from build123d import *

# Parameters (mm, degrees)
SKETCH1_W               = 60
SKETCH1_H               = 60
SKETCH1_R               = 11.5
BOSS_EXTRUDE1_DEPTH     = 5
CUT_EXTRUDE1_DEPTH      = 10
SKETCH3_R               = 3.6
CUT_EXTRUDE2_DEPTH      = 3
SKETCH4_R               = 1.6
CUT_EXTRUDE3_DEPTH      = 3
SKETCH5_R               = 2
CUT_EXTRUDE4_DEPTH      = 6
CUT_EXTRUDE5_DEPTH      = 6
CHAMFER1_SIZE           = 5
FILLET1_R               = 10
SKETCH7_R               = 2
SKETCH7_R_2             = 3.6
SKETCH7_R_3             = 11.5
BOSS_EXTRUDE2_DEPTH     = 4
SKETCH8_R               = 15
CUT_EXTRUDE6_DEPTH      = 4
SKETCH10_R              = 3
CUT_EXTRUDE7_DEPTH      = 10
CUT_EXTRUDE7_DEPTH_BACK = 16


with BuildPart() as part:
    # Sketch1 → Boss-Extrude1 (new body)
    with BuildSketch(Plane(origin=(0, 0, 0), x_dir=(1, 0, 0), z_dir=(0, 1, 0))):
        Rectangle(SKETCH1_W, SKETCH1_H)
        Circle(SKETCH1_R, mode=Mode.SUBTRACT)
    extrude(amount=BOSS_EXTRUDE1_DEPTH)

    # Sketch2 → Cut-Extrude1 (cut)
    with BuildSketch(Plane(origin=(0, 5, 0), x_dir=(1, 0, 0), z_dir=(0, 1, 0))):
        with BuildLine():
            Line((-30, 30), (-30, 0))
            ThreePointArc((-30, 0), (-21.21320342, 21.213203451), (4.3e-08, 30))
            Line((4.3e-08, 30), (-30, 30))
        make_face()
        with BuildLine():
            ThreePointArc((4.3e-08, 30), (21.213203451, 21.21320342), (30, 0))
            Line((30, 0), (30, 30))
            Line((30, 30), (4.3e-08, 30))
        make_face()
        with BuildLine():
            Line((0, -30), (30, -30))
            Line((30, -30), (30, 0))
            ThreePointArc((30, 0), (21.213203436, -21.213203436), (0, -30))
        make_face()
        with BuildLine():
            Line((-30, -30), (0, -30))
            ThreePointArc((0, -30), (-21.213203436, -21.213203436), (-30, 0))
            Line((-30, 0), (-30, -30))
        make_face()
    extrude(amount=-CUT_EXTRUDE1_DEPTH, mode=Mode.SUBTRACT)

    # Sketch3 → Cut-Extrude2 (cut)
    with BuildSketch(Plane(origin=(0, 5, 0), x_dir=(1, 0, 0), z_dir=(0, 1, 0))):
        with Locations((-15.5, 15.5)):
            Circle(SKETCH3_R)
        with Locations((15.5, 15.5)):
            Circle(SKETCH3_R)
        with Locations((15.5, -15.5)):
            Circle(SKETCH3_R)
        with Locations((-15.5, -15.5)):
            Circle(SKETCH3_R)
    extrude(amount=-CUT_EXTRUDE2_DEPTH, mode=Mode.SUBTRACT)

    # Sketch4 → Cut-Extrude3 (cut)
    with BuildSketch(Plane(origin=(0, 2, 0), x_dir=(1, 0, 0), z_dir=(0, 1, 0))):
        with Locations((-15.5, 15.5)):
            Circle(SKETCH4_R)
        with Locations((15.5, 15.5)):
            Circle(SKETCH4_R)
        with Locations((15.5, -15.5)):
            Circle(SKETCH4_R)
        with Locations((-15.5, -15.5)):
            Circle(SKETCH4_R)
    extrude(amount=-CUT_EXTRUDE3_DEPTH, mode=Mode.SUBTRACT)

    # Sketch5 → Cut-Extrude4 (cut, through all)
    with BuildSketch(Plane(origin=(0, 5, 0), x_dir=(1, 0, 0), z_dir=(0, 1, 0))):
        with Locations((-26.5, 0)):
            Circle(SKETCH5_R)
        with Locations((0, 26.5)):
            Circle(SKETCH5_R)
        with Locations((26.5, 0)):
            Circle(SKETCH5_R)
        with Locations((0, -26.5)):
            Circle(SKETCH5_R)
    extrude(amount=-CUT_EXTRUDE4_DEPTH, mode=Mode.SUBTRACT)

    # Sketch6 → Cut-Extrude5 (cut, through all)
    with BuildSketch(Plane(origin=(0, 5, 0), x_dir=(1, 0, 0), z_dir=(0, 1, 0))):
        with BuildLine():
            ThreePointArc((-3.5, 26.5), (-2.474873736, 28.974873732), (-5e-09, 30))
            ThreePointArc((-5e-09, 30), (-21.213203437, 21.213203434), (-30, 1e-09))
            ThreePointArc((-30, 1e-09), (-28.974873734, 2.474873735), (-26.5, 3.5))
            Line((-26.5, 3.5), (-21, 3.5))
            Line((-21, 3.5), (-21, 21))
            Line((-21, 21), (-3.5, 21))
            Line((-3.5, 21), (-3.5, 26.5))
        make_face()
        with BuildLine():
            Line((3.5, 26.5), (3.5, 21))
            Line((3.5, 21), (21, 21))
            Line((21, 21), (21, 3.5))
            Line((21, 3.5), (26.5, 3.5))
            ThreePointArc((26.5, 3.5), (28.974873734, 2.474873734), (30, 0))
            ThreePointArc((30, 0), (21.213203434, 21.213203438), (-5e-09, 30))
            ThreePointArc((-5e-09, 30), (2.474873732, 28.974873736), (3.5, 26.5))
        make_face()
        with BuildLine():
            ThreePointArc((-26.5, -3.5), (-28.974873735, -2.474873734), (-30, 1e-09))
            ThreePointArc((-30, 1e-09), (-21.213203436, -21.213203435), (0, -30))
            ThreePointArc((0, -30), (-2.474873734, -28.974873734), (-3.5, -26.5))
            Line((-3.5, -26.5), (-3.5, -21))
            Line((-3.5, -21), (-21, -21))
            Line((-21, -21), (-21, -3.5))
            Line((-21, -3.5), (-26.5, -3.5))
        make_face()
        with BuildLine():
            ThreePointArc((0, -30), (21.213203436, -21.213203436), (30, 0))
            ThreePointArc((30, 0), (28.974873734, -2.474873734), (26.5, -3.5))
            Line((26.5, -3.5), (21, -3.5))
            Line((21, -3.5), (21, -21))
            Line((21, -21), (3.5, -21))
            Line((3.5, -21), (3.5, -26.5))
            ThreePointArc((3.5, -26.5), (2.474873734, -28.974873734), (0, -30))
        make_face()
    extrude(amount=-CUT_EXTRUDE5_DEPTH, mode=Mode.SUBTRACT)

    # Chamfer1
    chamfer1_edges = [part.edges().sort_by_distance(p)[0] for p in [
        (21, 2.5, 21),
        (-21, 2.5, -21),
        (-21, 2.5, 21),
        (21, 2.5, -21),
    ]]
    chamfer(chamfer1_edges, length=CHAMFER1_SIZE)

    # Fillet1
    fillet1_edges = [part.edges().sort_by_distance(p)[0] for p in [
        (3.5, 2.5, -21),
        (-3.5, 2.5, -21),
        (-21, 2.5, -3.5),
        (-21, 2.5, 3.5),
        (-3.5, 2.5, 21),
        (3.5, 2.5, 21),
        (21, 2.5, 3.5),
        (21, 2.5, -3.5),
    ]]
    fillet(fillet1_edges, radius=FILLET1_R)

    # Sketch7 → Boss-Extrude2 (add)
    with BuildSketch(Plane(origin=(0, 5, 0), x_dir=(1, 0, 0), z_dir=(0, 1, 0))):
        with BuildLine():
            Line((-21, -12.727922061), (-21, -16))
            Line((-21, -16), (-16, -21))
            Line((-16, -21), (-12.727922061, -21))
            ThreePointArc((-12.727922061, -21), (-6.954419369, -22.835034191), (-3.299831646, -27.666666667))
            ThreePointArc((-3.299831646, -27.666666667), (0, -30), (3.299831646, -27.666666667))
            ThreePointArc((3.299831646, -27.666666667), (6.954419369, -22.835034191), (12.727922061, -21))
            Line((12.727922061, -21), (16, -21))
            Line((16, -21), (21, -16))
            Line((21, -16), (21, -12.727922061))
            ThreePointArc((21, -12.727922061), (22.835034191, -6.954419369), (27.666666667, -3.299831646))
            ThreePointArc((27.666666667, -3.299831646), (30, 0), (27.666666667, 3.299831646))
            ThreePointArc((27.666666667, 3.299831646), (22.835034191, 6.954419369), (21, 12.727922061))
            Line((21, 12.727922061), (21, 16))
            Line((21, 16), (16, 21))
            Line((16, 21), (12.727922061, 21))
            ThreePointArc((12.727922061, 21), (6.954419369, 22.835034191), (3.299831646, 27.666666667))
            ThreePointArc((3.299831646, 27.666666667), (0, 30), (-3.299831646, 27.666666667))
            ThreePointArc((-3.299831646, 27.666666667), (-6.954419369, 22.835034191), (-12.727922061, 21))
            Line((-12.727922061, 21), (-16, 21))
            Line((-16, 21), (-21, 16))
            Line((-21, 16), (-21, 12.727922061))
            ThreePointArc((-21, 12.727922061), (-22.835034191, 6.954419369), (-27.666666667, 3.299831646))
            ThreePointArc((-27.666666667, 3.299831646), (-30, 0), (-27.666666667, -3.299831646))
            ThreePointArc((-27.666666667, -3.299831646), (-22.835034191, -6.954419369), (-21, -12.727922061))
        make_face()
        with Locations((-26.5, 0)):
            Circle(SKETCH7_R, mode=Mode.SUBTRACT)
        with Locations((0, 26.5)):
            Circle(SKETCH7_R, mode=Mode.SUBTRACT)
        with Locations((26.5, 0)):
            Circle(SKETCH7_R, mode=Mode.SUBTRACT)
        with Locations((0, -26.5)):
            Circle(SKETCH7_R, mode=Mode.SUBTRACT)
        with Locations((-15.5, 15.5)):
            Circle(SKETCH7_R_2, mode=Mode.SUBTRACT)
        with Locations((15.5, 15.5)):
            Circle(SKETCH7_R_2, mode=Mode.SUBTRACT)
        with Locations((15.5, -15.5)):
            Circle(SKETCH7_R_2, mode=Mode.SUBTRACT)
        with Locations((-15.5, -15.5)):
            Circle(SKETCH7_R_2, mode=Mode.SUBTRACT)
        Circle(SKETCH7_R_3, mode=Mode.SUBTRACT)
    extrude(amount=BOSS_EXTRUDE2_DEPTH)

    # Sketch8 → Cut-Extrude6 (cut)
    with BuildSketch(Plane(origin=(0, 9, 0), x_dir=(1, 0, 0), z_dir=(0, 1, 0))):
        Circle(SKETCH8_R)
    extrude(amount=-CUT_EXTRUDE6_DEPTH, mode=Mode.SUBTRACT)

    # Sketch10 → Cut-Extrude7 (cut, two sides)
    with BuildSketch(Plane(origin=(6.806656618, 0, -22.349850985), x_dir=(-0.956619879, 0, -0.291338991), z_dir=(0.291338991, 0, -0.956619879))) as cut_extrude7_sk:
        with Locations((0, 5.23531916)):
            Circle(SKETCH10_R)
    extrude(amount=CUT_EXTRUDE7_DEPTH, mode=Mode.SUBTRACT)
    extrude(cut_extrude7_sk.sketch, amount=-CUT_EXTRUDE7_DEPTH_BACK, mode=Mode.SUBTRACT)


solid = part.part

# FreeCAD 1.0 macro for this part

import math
import FreeCAD as App
import Part
import Sketcher

V = App.Vector
Q = App.Units.Quantity


def edges_at(feature, points):
    """Names of the edges that pass closest to the given points."""
    edges = feature.Shape.Edges
    near = lambda p: min(range(len(edges)), key=lambda i: edges[i].distToShape(Part.Vertex(*p))[0])
    return sorted({f"Edge{near(p) + 1}" for p in points})

doc = App.newDocument("Part")
body = doc.addObject("PartDesign::Body", "Body")

sketch1 = body.newObject("Sketcher::SketchObject", "Sketch")
sketch1.AttachmentSupport = (doc.getObject("XZ_Plane"), [""])
sketch1.MapMode = "FlatFace"
sketch1.addGeometry(Part.LineSegment(V(-30, -30, 0), V(-30, 30, 0)), False)
sketch1.addGeometry(Part.LineSegment(V(-30, 30, 0), V(30, 30, 0)), False)
sketch1.addGeometry(Part.LineSegment(V(30, 30, 0), V(30, -30, 0)), False)
sketch1.addGeometry(Part.LineSegment(V(30, -30, 0), V(-30, -30, 0)), False)
sketch1.addGeometry(Part.Circle(V(0, 0, 0), V(0, 0, 1), 12), False)
sketch1.addConstraint(Sketcher.Constraint("Coincident", 0, 2, 1, 1))
sketch1.addConstraint(Sketcher.Constraint("Coincident", 1, 2, 2, 1))
sketch1.addConstraint(Sketcher.Constraint("Coincident", 2, 2, 3, 1))
sketch1.addConstraint(Sketcher.Constraint("Coincident", 3, 2, 0, 1))
sketch1.addConstraint(Sketcher.Constraint("Vertical", 0))
sketch1.addConstraint(Sketcher.Constraint("Horizontal", 1))
sketch1.addConstraint(Sketcher.Constraint("Vertical", 2))
sketch1.addConstraint(Sketcher.Constraint("Horizontal", 3))
sketch1.addConstraint(Sketcher.Constraint("Coincident", 4, 3, -1, 1))
sketch1.addConstraint(Sketcher.Constraint("Symmetric", 0, 2, 2, 2, -1, 1))
sketch1.addConstraint(Sketcher.Constraint("Equal", 3, 0))
sketch1.addConstraint(Sketcher.Constraint("Diameter", 4, Q("23 mm")))
sketch1.addConstraint(Sketcher.Constraint("DistanceX", 1, 1, 1, 2, Q("60 mm")))
pad1 = body.newObject("PartDesign::Pad", "Pad")
pad1.Profile = sketch1
pad1.Length = 5
pad1.Reversed = True

sketch2 = body.newObject("Sketcher::SketchObject", "Sketch001")
sketch2.AttachmentSupport = (doc.getObject("XZ_Plane"), [""])
sketch2.MapMode = "FlatFace"
sketch2.AttachmentOffset = App.Placement(V(0, 0, -5), App.Rotation())
sketch2.addGeometry(Part.LineSegment(V(-30, -30, 0), V(-30, 0, 0)), False)
sketch2.addGeometry(Part.ArcOfCircle(Part.Circle(V(0, 0, 0), V(0, 0, 1), 30), math.radians(180), math.radians(270)), False)
sketch2.addGeometry(Part.LineSegment(V(0, -30, 0), V(-30, -30, 0)), False)
sketch2.addGeometry(Part.ArcOfCircle(Part.Circle(V(0, 0, 0), V(0, 0, 1), 30), math.radians(-90), math.radians(0)), False)
sketch2.addGeometry(Part.LineSegment(V(30, 0, 0), V(30, -30, 0)), False)
sketch2.addGeometry(Part.LineSegment(V(30, -30, 0), V(0, -30, 0)), False)
sketch2.addGeometry(Part.LineSegment(V(0, 30, 0), V(30, 30, 0)), False)
sketch2.addGeometry(Part.LineSegment(V(30, 30, 0), V(30, 0, 0)), False)
sketch2.addGeometry(Part.ArcOfCircle(Part.Circle(V(0, 0, 0), V(0, 0, 1), 30), math.radians(0), math.radians(90)), False)
sketch2.addGeometry(Part.LineSegment(V(-30, 30, 0), V(0, 30, 0)), False)
sketch2.addGeometry(Part.ArcOfCircle(Part.Circle(V(0, 0, 0), V(0, 0, 1), 30), math.radians(90), math.radians(180)), False)
sketch2.addGeometry(Part.LineSegment(V(-30, 0, 0), V(-30, 30, 0)), False)
sketch2.addConstraint(Sketcher.Constraint("Tangent", 0, 2, 1, 1))
sketch2.addConstraint(Sketcher.Constraint("Tangent", 1, 2, 2, 1))
sketch2.addConstraint(Sketcher.Constraint("Coincident", 2, 2, 0, 1))
sketch2.addConstraint(Sketcher.Constraint("Tangent", 3, 2, 4, 1))
sketch2.addConstraint(Sketcher.Constraint("Coincident", 4, 2, 5, 1))
sketch2.addConstraint(Sketcher.Constraint("Tangent", 5, 2, 3, 1))
sketch2.addConstraint(Sketcher.Constraint("Coincident", 6, 2, 7, 1))
sketch2.addConstraint(Sketcher.Constraint("Tangent", 7, 2, 8, 1))
sketch2.addConstraint(Sketcher.Constraint("Tangent", 8, 2, 6, 1))
sketch2.addConstraint(Sketcher.Constraint("Tangent", 9, 2, 10, 1))
sketch2.addConstraint(Sketcher.Constraint("Tangent", 10, 2, 11, 1))
sketch2.addConstraint(Sketcher.Constraint("Coincident", 11, 2, 9, 1))
sketch2.addConstraint(Sketcher.Constraint("Vertical", 0))
sketch2.addConstraint(Sketcher.Constraint("Horizontal", 2))
sketch2.addConstraint(Sketcher.Constraint("Vertical", 4))
sketch2.addConstraint(Sketcher.Constraint("Horizontal", 5))
sketch2.addConstraint(Sketcher.Constraint("Horizontal", 6))
sketch2.addConstraint(Sketcher.Constraint("Vertical", 7))
sketch2.addConstraint(Sketcher.Constraint("Horizontal", 9))
sketch2.addConstraint(Sketcher.Constraint("Vertical", 11))
sketch2.addConstraint(Sketcher.Constraint("Coincident", 1, 3, -1, 1))
sketch2.addConstraint(Sketcher.Constraint("Coincident", 3, 3, -1, 1))
sketch2.addConstraint(Sketcher.Constraint("Coincident", 8, 3, -1, 1))
sketch2.addConstraint(Sketcher.Constraint("Coincident", 10, 3, -1, 1))
sketch2.addConstraint(Sketcher.Constraint("Equal", 1, 3))
sketch2.addConstraint(Sketcher.Constraint("Equal", 3, 8))
sketch2.addConstraint(Sketcher.Constraint("Equal", 8, 10))
sketch2.addConstraint(Sketcher.Constraint("Radius", 1, Q("30 mm")))
pocket1 = body.newObject("PartDesign::Pocket", "Pocket")
pocket1.Profile = sketch2
pocket1.Length = 10
pocket1.Reversed = True

sketch3 = body.newObject("Sketcher::SketchObject", "Sketch002")
sketch3.AttachmentSupport = (doc.getObject("XZ_Plane"), [""])
sketch3.MapMode = "FlatFace"
sketch3.AttachmentOffset = App.Placement(V(0, 0, -5), App.Rotation())
sketch3.addGeometry(Part.Circle(V(-15.5, -15.5, 0), V(0, 0, 1), 3.6), False)
sketch3.addGeometry(Part.Circle(V(15.5, -15.5, 0), V(0, 0, 1), 3.6), False)
sketch3.addGeometry(Part.Circle(V(15.5, 15.5, 0), V(0, 0, 1), 3.6), False)
sketch3.addGeometry(Part.Circle(V(-15.5, 15.5, 0), V(0, 0, 1), 3.6), False)
sketch3.addConstraint(Sketcher.Constraint("Equal", 0, 1))
sketch3.addConstraint(Sketcher.Constraint("Equal", 1, 2))
sketch3.addConstraint(Sketcher.Constraint("Equal", 2, 3))
sketch3.addConstraint(Sketcher.Constraint("Symmetric", 0, 3, 2, 3, -1, 1))
sketch3.addConstraint(Sketcher.Constraint("Symmetric", 1, 3, 3, 3, -1, 1))
sketch3.addConstraint(Sketcher.Constraint("Symmetric", 0, 3, 1, 3, -2))
sketch3.addConstraint(Sketcher.Constraint("Diameter", 0, Q("7.2 mm")))
sketch3.addConstraint(Sketcher.Constraint("DistanceX", 0, 3, 1, 3, Q("31 mm")))
sketch3.addConstraint(Sketcher.Constraint("DistanceY", 1, 3, 2, 3, Q("31 mm")))
pocket2 = body.newObject("PartDesign::Pocket", "Pocket001")
pocket2.Profile = sketch3
pocket2.Length = 3
pocket2.Reversed = True

sketch4 = body.newObject("Sketcher::SketchObject", "Sketch003")
sketch4.AttachmentSupport = (doc.getObject("XZ_Plane"), [""])
sketch4.MapMode = "FlatFace"
sketch4.AttachmentOffset = App.Placement(V(0, 0, -2), App.Rotation())
sketch4.addGeometry(Part.Circle(V(-15.5, -15.5, 0), V(0, 0, 1), 1.6), False)
sketch4.addGeometry(Part.Circle(V(15.5, -15.5, 0), V(0, 0, 1), 1.6), False)
sketch4.addGeometry(Part.Circle(V(15.5, 15.5, 0), V(0, 0, 1), 1.6), False)
sketch4.addGeometry(Part.Circle(V(-15.5, 15.5, 0), V(0, 0, 1), 1.6), False)
sketch4.addConstraint(Sketcher.Constraint("Equal", 0, 1))
sketch4.addConstraint(Sketcher.Constraint("Equal", 1, 2))
sketch4.addConstraint(Sketcher.Constraint("Equal", 2, 3))
sketch4.addConstraint(Sketcher.Constraint("Symmetric", 0, 3, 2, 3, -1, 1))
sketch4.addConstraint(Sketcher.Constraint("Symmetric", 1, 3, 3, 3, -1, 1))
sketch4.addConstraint(Sketcher.Constraint("Symmetric", 0, 3, 1, 3, -2))
sketch4.addConstraint(Sketcher.Constraint("Diameter", 0, Q("3.2 mm")))
sketch4.addConstraint(Sketcher.Constraint("DistanceX", 0, 3, 1, 3, Q("31 mm")))
sketch4.addConstraint(Sketcher.Constraint("DistanceY", 1, 3, 2, 3, Q("31 mm")))
pocket3 = body.newObject("PartDesign::Pocket", "Pocket002")
pocket3.Profile = sketch4
pocket3.Length = 3
pocket3.Reversed = True

sketch5 = body.newObject("Sketcher::SketchObject", "Sketch004")
sketch5.AttachmentSupport = (doc.getObject("XZ_Plane"), [""])
sketch5.MapMode = "FlatFace"
sketch5.AttachmentOffset = App.Placement(V(0, 0, -5), App.Rotation())
sketch5.addGeometry(Part.Circle(V(-26.5, 0, 0), V(0, 0, 1), 2), False)
sketch5.addGeometry(Part.Circle(V(0, -26.5, 0), V(0, 0, 1), 2), False)
sketch5.addGeometry(Part.Circle(V(26.5, 0, 0), V(0, 0, 1), 2), False)
sketch5.addGeometry(Part.Circle(V(0, 26.5, 0), V(0, 0, 1), 2), False)
sketch5.addConstraint(Sketcher.Constraint("Equal", 0, 1))
sketch5.addConstraint(Sketcher.Constraint("Equal", 1, 2))
sketch5.addConstraint(Sketcher.Constraint("Equal", 2, 3))
sketch5.addConstraint(Sketcher.Constraint("Symmetric", 0, 3, 2, 3, -1, 1))
sketch5.addConstraint(Sketcher.Constraint("Symmetric", 1, 3, 3, 3, -1, 1))
sketch5.addConstraint(Sketcher.Constraint("PointOnObject", 0, 3, -1))
sketch5.addConstraint(Sketcher.Constraint("PointOnObject", 1, 3, -2))
sketch5.addConstraint(Sketcher.Constraint("Diameter", 0, Q("4 mm")))
sketch5.addConstraint(Sketcher.Constraint("DistanceX", 0, 3, 2, 3, Q("53 mm")))
sketch5.addConstraint(Sketcher.Constraint("DistanceY", 1, 3, 3, 3, Q("53 mm")))
pocket4 = body.newObject("PartDesign::Pocket", "Pocket003")
pocket4.Profile = sketch5
pocket4.Type = "ThroughAll"
pocket4.Reversed = True

sketch6 = body.newObject("Sketcher::SketchObject", "Sketch005")
sketch6.AttachmentSupport = (doc.getObject("XZ_Plane"), [""])
sketch6.MapMode = "FlatFace"
sketch6.AttachmentOffset = App.Placement(V(0, 0, -5), App.Rotation())
sketch6.addGeometry(Part.ArcOfCircle(Part.Circle(V(0, -26.5, 0), V(0, 0, 1), 3.5), math.radians(-180), math.radians(-90)), False)
sketch6.addGeometry(Part.ArcOfCircle(Part.Circle(V(0, 0, 0), V(0, 0, 1), 30), math.radians(-180), math.radians(-90)), False)
sketch6.addGeometry(Part.ArcOfCircle(Part.Circle(V(-26.5, 0, 0), V(0, 0, 1), 3.5), math.radians(180), math.radians(270)), False)
sketch6.addGeometry(Part.LineSegment(V(-26.5, -3.5, 0), V(-21, -3.5, 0)), False)
sketch6.addGeometry(Part.LineSegment(V(-21, -3.5, 0), V(-21, -21, 0)), False)
sketch6.addGeometry(Part.LineSegment(V(-21, -21, 0), V(-3.5, -21, 0)), False)
sketch6.addGeometry(Part.LineSegment(V(-3.5, -21, 0), V(-3.5, -26.5, 0)), False)
sketch6.addGeometry(Part.LineSegment(V(3.5, -26.5, 0), V(3.5, -21, 0)), False)
sketch6.addGeometry(Part.LineSegment(V(3.5, -21, 0), V(21, -21, 0)), False)
sketch6.addGeometry(Part.LineSegment(V(21, -21, 0), V(21, -3.5, 0)), False)
sketch6.addGeometry(Part.LineSegment(V(21, -3.5, 0), V(26.5, -3.5, 0)), False)
sketch6.addGeometry(Part.ArcOfCircle(Part.Circle(V(26.5, 0, 0), V(0, 0, 1), 3.5), math.radians(-90), math.radians(0)), False)
sketch6.addGeometry(Part.ArcOfCircle(Part.Circle(V(0, 0, 0), V(0, 0, 1), 30), math.radians(-90), math.radians(0)), False)
sketch6.addGeometry(Part.ArcOfCircle(Part.Circle(V(0, -26.5, 0), V(0, 0, 1), 3.5), math.radians(-90), math.radians(0)), False)
sketch6.addGeometry(Part.ArcOfCircle(Part.Circle(V(-26.5, 0, 0), V(0, 0, 1), 3.5), math.radians(90), math.radians(180)), False)
sketch6.addGeometry(Part.ArcOfCircle(Part.Circle(V(0, 0, 0), V(0, 0, 1), 30), math.radians(90), math.radians(180)), False)
sketch6.addGeometry(Part.ArcOfCircle(Part.Circle(V(0, 26.5, 0), V(0, 0, 1), 3.5), math.radians(90), math.radians(180)), False)
sketch6.addGeometry(Part.LineSegment(V(-3.5, 26.5, 0), V(-3.5, 21, 0)), False)
sketch6.addGeometry(Part.LineSegment(V(-3.5, 21, 0), V(-21, 21, 0)), False)
sketch6.addGeometry(Part.LineSegment(V(-21, 21, 0), V(-21, 3.5, 0)), False)
sketch6.addGeometry(Part.LineSegment(V(-21, 3.5, 0), V(-26.5, 3.5, 0)), False)
sketch6.addGeometry(Part.ArcOfCircle(Part.Circle(V(0, 0, 0), V(0, 0, 1), 30), math.radians(0), math.radians(90)), False)
sketch6.addGeometry(Part.ArcOfCircle(Part.Circle(V(26.5, 0, 0), V(0, 0, 1), 3.5), math.radians(0), math.radians(90)), False)
sketch6.addGeometry(Part.LineSegment(V(26.5, 3.5, 0), V(21, 3.5, 0)), False)
sketch6.addGeometry(Part.LineSegment(V(21, 3.5, 0), V(21, 21, 0)), False)
sketch6.addGeometry(Part.LineSegment(V(21, 21, 0), V(3.5, 21, 0)), False)
sketch6.addGeometry(Part.LineSegment(V(3.5, 21, 0), V(3.5, 26.5, 0)), False)
sketch6.addGeometry(Part.ArcOfCircle(Part.Circle(V(0, 26.5, 0), V(0, 0, 1), 3.5), math.radians(0), math.radians(90)), False)
sketch6.addConstraint(Sketcher.Constraint("Tangent", 0, 2, 1, 2))
sketch6.addConstraint(Sketcher.Constraint("Tangent", 1, 1, 2, 1))
sketch6.addConstraint(Sketcher.Constraint("Tangent", 2, 2, 3, 1))
sketch6.addConstraint(Sketcher.Constraint("Coincident", 3, 2, 4, 1))
sketch6.addConstraint(Sketcher.Constraint("Coincident", 4, 2, 5, 1))
sketch6.addConstraint(Sketcher.Constraint("Coincident", 5, 2, 6, 1))
sketch6.addConstraint(Sketcher.Constraint("Tangent", 6, 2, 0, 1))
sketch6.addConstraint(Sketcher.Constraint("Coincident", 7, 2, 8, 1))
sketch6.addConstraint(Sketcher.Constraint("Coincident", 8, 2, 9, 1))
sketch6.addConstraint(Sketcher.Constraint("Coincident", 9, 2, 10, 1))
sketch6.addConstraint(Sketcher.Constraint("Tangent", 10, 2, 11, 1))
sketch6.addConstraint(Sketcher.Constraint("Tangent", 11, 2, 12, 2))
sketch6.addConstraint(Sketcher.Constraint("Tangent", 12, 1, 13, 1))
sketch6.addConstraint(Sketcher.Constraint("Tangent", 13, 2, 7, 1))
sketch6.addConstraint(Sketcher.Constraint("Tangent", 14, 2, 15, 2))
sketch6.addConstraint(Sketcher.Constraint("Tangent", 15, 1, 16, 1))
sketch6.addConstraint(Sketcher.Constraint("Tangent", 16, 2, 17, 1))
sketch6.addConstraint(Sketcher.Constraint("Coincident", 17, 2, 18, 1))
sketch6.addConstraint(Sketcher.Constraint("Coincident", 18, 2, 19, 1))
sketch6.addConstraint(Sketcher.Constraint("Coincident", 19, 2, 20, 1))
sketch6.addConstraint(Sketcher.Constraint("Tangent", 20, 2, 14, 1))
sketch6.addConstraint(Sketcher.Constraint("Tangent", 21, 1, 22, 1))
sketch6.addConstraint(Sketcher.Constraint("Tangent", 22, 2, 23, 1))
sketch6.addConstraint(Sketcher.Constraint("Coincident", 23, 2, 24, 1))
sketch6.addConstraint(Sketcher.Constraint("Coincident", 24, 2, 25, 1))
sketch6.addConstraint(Sketcher.Constraint("Coincident", 25, 2, 26, 1))
sketch6.addConstraint(Sketcher.Constraint("Tangent", 26, 2, 27, 1))
sketch6.addConstraint(Sketcher.Constraint("Tangent", 27, 2, 21, 2))
sketch6.addConstraint(Sketcher.Constraint("Horizontal", 3))
sketch6.addConstraint(Sketcher.Constraint("Vertical", 4))
sketch6.addConstraint(Sketcher.Constraint("Horizontal", 5))
sketch6.addConstraint(Sketcher.Constraint("Vertical", 6))
sketch6.addConstraint(Sketcher.Constraint("Vertical", 7))
sketch6.addConstraint(Sketcher.Constraint("Horizontal", 8))
sketch6.addConstraint(Sketcher.Constraint("Vertical", 9))
sketch6.addConstraint(Sketcher.Constraint("Horizontal", 10))
sketch6.addConstraint(Sketcher.Constraint("Vertical", 17))
sketch6.addConstraint(Sketcher.Constraint("Horizontal", 18))
sketch6.addConstraint(Sketcher.Constraint("Vertical", 19))
sketch6.addConstraint(Sketcher.Constraint("Horizontal", 20))
sketch6.addConstraint(Sketcher.Constraint("Horizontal", 23))
sketch6.addConstraint(Sketcher.Constraint("Vertical", 24))
sketch6.addConstraint(Sketcher.Constraint("Horizontal", 25))
sketch6.addConstraint(Sketcher.Constraint("Vertical", 26))
sketch6.addConstraint(Sketcher.Constraint("Coincident", 1, 3, -1, 1))
sketch6.addConstraint(Sketcher.Constraint("Coincident", 12, 3, -1, 1))
sketch6.addConstraint(Sketcher.Constraint("Coincident", 15, 3, -1, 1))
sketch6.addConstraint(Sketcher.Constraint("Coincident", 21, 3, -1, 1))
sketch6.addConstraint(Sketcher.Constraint("Coincident", 13, 3, 0, 3))
sketch6.addConstraint(Sketcher.Constraint("Coincident", 14, 3, 2, 3))
sketch6.addConstraint(Sketcher.Constraint("Coincident", 22, 3, 11, 3))
sketch6.addConstraint(Sketcher.Constraint("Coincident", 27, 3, 16, 3))
sketch6.addConstraint(Sketcher.Constraint("Equal", 0, 2))
sketch6.addConstraint(Sketcher.Constraint("Equal", 2, 11))
sketch6.addConstraint(Sketcher.Constraint("Equal", 1, 12))
sketch6.addConstraint(Sketcher.Constraint("Equal", 13, 14))
sketch6.addConstraint(Sketcher.Constraint("Equal", 14, 16))
sketch6.addConstraint(Sketcher.Constraint("Equal", 15, 21))
sketch6.addConstraint(Sketcher.Constraint("Symmetric", 7, 2, 17, 2, -1, 1))
sketch6.addConstraint(Sketcher.Constraint("Symmetric", 9, 2, 19, 2, -1, 1))
sketch6.addConstraint(Sketcher.Constraint("Symmetric", 4, 2, 24, 2, -1, 1))
sketch6.addConstraint(Sketcher.Constraint("Symmetric", 5, 2, 7, 2, -2))
sketch6.addConstraint(Sketcher.Constraint("Symmetric", 3, 2, 9, 2, -2))
sketch6.addConstraint(Sketcher.Constraint("Equal", 25, 4))
sketch6.addConstraint(Sketcher.Constraint("Radius", 1, Q("30 mm")))
sketch6.addConstraint(Sketcher.Constraint("Radius", 0, Q("3.5 mm")))
sketch6.addConstraint(Sketcher.Constraint("DistanceX", 3, 1, 3, 2, Q("5.5 mm")))
pocket5 = body.newObject("PartDesign::Pocket", "Pocket004")
pocket5.Profile = sketch6
pocket5.Type = "ThroughAll"
pocket5.Reversed = True
doc.recompute()

chamfer = body.newObject("PartDesign::Chamfer", "Chamfer")
chamfer.Base = (pocket5, edges_at(pocket5, [
    (21, 2.5, 21),
    (-21, 2.5, -21),
    (-21, 2.5, 21),
    (21, 2.5, -21),
]))
chamfer.Size = 5
doc.recompute()

fillet = body.newObject("PartDesign::Fillet", "Fillet")
fillet.Base = (chamfer, edges_at(chamfer, [
    (3.5, 2.5, -21),
    (-3.5, 2.5, -21),
    (-21, 2.5, -3.5),
    (-21, 2.5, 3.5),
    (-3.5, 2.5, 21),
    (3.5, 2.5, 21),
    (21, 2.5, 3.5),
    (21, 2.5, -3.5),
]))
fillet.Radius = 10

sketch7 = body.newObject("Sketcher::SketchObject", "Sketch006")
sketch7.AttachmentSupport = (doc.getObject("XZ_Plane"), [""])
sketch7.MapMode = "FlatFace"
sketch7.AttachmentOffset = App.Placement(V(0, 0, -5), App.Rotation())
sketch7.addGeometry(Part.LineSegment(V(-21, 12.7, 0), V(-21, 16, 0)), False)
sketch7.addGeometry(Part.LineSegment(V(-21, 16, 0), V(-16, 21, 0)), False)
sketch7.addGeometry(Part.LineSegment(V(-16, 21, 0), V(-12.7, 21, 0)), False)
sketch7.addGeometry(Part.ArcOfCircle(Part.Circle(V(-12.7, 31, 0), V(0, 0, 1), 10), math.radians(-90), math.radians(-19)), False)
sketch7.addGeometry(Part.ArcOfCircle(Part.Circle(V(0, 26.5, 0), V(0, 0, 1), 3.5), math.radians(19), math.radians(161)), False)
sketch7.addGeometry(Part.ArcOfCircle(Part.Circle(V(12.7, 31, 0), V(0, 0, 1), 10), math.radians(-161), math.radians(-90)), False)
sketch7.addGeometry(Part.LineSegment(V(12.7, 21, 0), V(16, 21, 0)), False)
sketch7.addGeometry(Part.LineSegment(V(16, 21, 0), V(21, 16, 0)), False)
sketch7.addGeometry(Part.LineSegment(V(21, 16, 0), V(21, 12.7, 0)), False)
sketch7.addGeometry(Part.ArcOfCircle(Part.Circle(V(31, 12.7, 0), V(0, 0, 1), 10), math.radians(180), math.radians(251)), False)
sketch7.addGeometry(Part.ArcOfCircle(Part.Circle(V(26.5, 0, 0), V(0, 0, 1), 3.5), math.radians(-71), math.radians(71)), False)
sketch7.addGeometry(Part.ArcOfCircle(Part.Circle(V(31, -12.7, 0), V(0, 0, 1), 10), math.radians(109), math.radians(180)), False)
sketch7.addGeometry(Part.LineSegment(V(21, -12.7, 0), V(21, -16, 0)), False)
sketch7.addGeometry(Part.LineSegment(V(21, -16, 0), V(16, -21, 0)), False)
sketch7.addGeometry(Part.LineSegment(V(16, -21, 0), V(12.7, -21, 0)), False)
sketch7.addGeometry(Part.ArcOfCircle(Part.Circle(V(12.7, -31, 0), V(0, 0, 1), 10), math.radians(90), math.radians(161)), False)
sketch7.addGeometry(Part.ArcOfCircle(Part.Circle(V(0, -26.5, 0), V(0, 0, 1), 3.5), math.radians(-161), math.radians(-19)), False)
sketch7.addGeometry(Part.ArcOfCircle(Part.Circle(V(-12.7, -31, 0), V(0, 0, 1), 10), math.radians(19), math.radians(90)), False)
sketch7.addGeometry(Part.LineSegment(V(-12.7, -21, 0), V(-16, -21, 0)), False)
sketch7.addGeometry(Part.LineSegment(V(-16, -21, 0), V(-21, -16, 0)), False)
sketch7.addGeometry(Part.LineSegment(V(-21, -16, 0), V(-21, -12.7, 0)), False)
sketch7.addGeometry(Part.ArcOfCircle(Part.Circle(V(-31, -12.7, 0), V(0, 0, 1), 10), math.radians(0), math.radians(71)), False)
sketch7.addGeometry(Part.ArcOfCircle(Part.Circle(V(-26.5, 0, 0), V(0, 0, 1), 3.5), math.radians(109), math.radians(251)), False)
sketch7.addGeometry(Part.ArcOfCircle(Part.Circle(V(-31, 12.7, 0), V(0, 0, 1), 10), math.radians(-71), math.radians(0)), False)
sketch7.addGeometry(Part.Circle(V(-15.5, 15.5, 0), V(0, 0, 1), 3.6), False)
sketch7.addGeometry(Part.Circle(V(0, 26.5, 0), V(0, 0, 1), 2), False)
sketch7.addGeometry(Part.Circle(V(15.5, 15.5, 0), V(0, 0, 1), 3.6), False)
sketch7.addGeometry(Part.Circle(V(-26.5, 0, 0), V(0, 0, 1), 2), False)
sketch7.addGeometry(Part.Circle(V(-15.5, -15.5, 0), V(0, 0, 1), 3.6), False)
sketch7.addGeometry(Part.Circle(V(0, 0, 0), V(0, 0, 1), 11.5), False)
sketch7.addGeometry(Part.Circle(V(26.5, 0, 0), V(0, 0, 1), 2), False)
sketch7.addGeometry(Part.Circle(V(0, -26.5, 0), V(0, 0, 1), 2), False)
sketch7.addGeometry(Part.Circle(V(15.5, -15.5, 0), V(0, 0, 1), 3.6), False)
sketch7.addConstraint(Sketcher.Constraint("Coincident", 0, 2, 1, 1))
sketch7.addConstraint(Sketcher.Constraint("Coincident", 1, 2, 2, 1))
sketch7.addConstraint(Sketcher.Constraint("Tangent", 2, 2, 3, 1))
sketch7.addConstraint(Sketcher.Constraint("Tangent", 3, 2, 4, 2))
sketch7.addConstraint(Sketcher.Constraint("Tangent", 4, 1, 5, 1))
sketch7.addConstraint(Sketcher.Constraint("Tangent", 5, 2, 6, 1))
sketch7.addConstraint(Sketcher.Constraint("Coincident", 6, 2, 7, 1))
sketch7.addConstraint(Sketcher.Constraint("Coincident", 7, 2, 8, 1))
sketch7.addConstraint(Sketcher.Constraint("Tangent", 8, 2, 9, 1))
sketch7.addConstraint(Sketcher.Constraint("Tangent", 9, 2, 10, 2))
sketch7.addConstraint(Sketcher.Constraint("Tangent", 10, 1, 11, 1))
sketch7.addConstraint(Sketcher.Constraint("Tangent", 11, 2, 12, 1))
sketch7.addConstraint(Sketcher.Constraint("Coincident", 12, 2, 13, 1))
sketch7.addConstraint(Sketcher.Constraint("Coincident", 13, 2, 14, 1))
sketch7.addConstraint(Sketcher.Constraint("Tangent", 14, 2, 15, 1))
sketch7.addConstraint(Sketcher.Constraint("Tangent", 15, 2, 16, 2))
sketch7.addConstraint(Sketcher.Constraint("Tangent", 16, 1, 17, 1))
sketch7.addConstraint(Sketcher.Constraint("Tangent", 17, 2, 18, 1))
sketch7.addConstraint(Sketcher.Constraint("Coincident", 18, 2, 19, 1))
sketch7.addConstraint(Sketcher.Constraint("Coincident", 19, 2, 20, 1))
sketch7.addConstraint(Sketcher.Constraint("Tangent", 20, 2, 21, 1))
sketch7.addConstraint(Sketcher.Constraint("Tangent", 21, 2, 22, 2))
sketch7.addConstraint(Sketcher.Constraint("Tangent", 22, 1, 23, 1))
sketch7.addConstraint(Sketcher.Constraint("Tangent", 23, 2, 0, 1))
sketch7.addConstraint(Sketcher.Constraint("Vertical", 0))
sketch7.addConstraint(Sketcher.Constraint("Horizontal", 2))
sketch7.addConstraint(Sketcher.Constraint("Horizontal", 6))
sketch7.addConstraint(Sketcher.Constraint("Vertical", 8))
sketch7.addConstraint(Sketcher.Constraint("Vertical", 12))
sketch7.addConstraint(Sketcher.Constraint("Horizontal", 14))
sketch7.addConstraint(Sketcher.Constraint("Horizontal", 18))
sketch7.addConstraint(Sketcher.Constraint("Vertical", 20))
sketch7.addConstraint(Sketcher.Constraint("Coincident", 29, 3, -1, 1))
sketch7.addConstraint(Sketcher.Constraint("Coincident", 25, 3, 4, 3))
sketch7.addConstraint(Sketcher.Constraint("Coincident", 27, 3, 22, 3))
sketch7.addConstraint(Sketcher.Constraint("Coincident", 30, 3, 10, 3))
sketch7.addConstraint(Sketcher.Constraint("Coincident", 31, 3, 16, 3))
sketch7.addConstraint(Sketcher.Constraint("Equal", 3, 5))
sketch7.addConstraint(Sketcher.Constraint("Equal", 5, 9))
sketch7.addConstraint(Sketcher.Constraint("Equal", 4, 10))
sketch7.addConstraint(Sketcher.Constraint("Equal", 9, 11))
sketch7.addConstraint(Sketcher.Constraint("Equal", 11, 15))
sketch7.addConstraint(Sketcher.Constraint("Equal", 10, 16))
sketch7.addConstraint(Sketcher.Constraint("Equal", 15, 17))
sketch7.addConstraint(Sketcher.Constraint("Equal", 17, 21))
sketch7.addConstraint(Sketcher.Constraint("Equal", 16, 22))
sketch7.addConstraint(Sketcher.Constraint("Equal", 21, 23))
sketch7.addConstraint(Sketcher.Constraint("Equal", 24, 26))
sketch7.addConstraint(Sketcher.Constraint("Equal", 25, 27))
sketch7.addConstraint(Sketcher.Constraint("Equal", 26, 28))
sketch7.addConstraint(Sketcher.Constraint("Equal", 27, 30))
sketch7.addConstraint(Sketcher.Constraint("Equal", 30, 31))
sketch7.addConstraint(Sketcher.Constraint("Equal", 28, 32))
sketch7.addConstraint(Sketcher.Constraint("Symmetric", 3, 3, 15, 3, -1, 1))
sketch7.addConstraint(Sketcher.Constraint("Symmetric", 5, 3, 17, 3, -1, 1))
sketch7.addConstraint(Sketcher.Constraint("Symmetric", 9, 3, 21, 3, -1, 1))
sketch7.addConstraint(Sketcher.Constraint("Symmetric", 11, 3, 23, 3, -1, 1))
sketch7.addConstraint(Sketcher.Constraint("Symmetric", 26, 3, 28, 3, -1, 1))
sketch7.addConstraint(Sketcher.Constraint("Symmetric", 24, 3, 32, 3, -1, 1))
sketch7.addConstraint(Sketcher.Constraint("Symmetric", 3, 3, 5, 3, -2))
sketch7.addConstraint(Sketcher.Constraint("Symmetric", 11, 3, 21, 3, -2))
sketch7.addConstraint(Sketcher.Constraint("Symmetric", 24, 3, 26, 3, -2))
sketch7.addConstraint(Sketcher.Constraint("Perpendicular", 1, 7))
sketch7.addConstraint(Sketcher.Constraint("Perpendicular", 7, 13))
sketch7.addConstraint(Sketcher.Constraint("Perpendicular", 13, 19))
sketch7.addConstraint(Sketcher.Constraint("Horizontal", 0, 2, 7, 2))
sketch7.addConstraint(Sketcher.Constraint("Horizontal", 12, 2, 19, 2))
sketch7.addConstraint(Sketcher.Constraint("Vertical", 6, 2, 13, 2))
sketch7.addConstraint(Sketcher.Constraint("Vertical", 1, 2, 18, 2))
sketch7.addConstraint(Sketcher.Constraint("Equal", 18, 0))
sketch7.addConstraint(Sketcher.Constraint("Diameter", 25, Q("4 mm")))
sketch7.addConstraint(Sketcher.Constraint("Diameter", 29, Q("23 mm")))
sketch7.addConstraint(Sketcher.Constraint("Radius", 3, Q("10 mm")))
sketch7.addConstraint(Sketcher.Constraint("Diameter", 24, Q("7.2 mm")))
sketch7.addConstraint(Sketcher.Constraint("Radius", 4, Q("3.5 mm")))
sketch7.addConstraint(Sketcher.Constraint("DistanceY", -1, 1, 3, 3, Q("31 mm")))
sketch7.addConstraint(Sketcher.Constraint("DistanceX", -1, 1, 9, 3, Q("31 mm")))
sketch7.addConstraint(Sketcher.Constraint("DistanceY", -1, 1, 0, 2, Q("16 mm")))
sketch7.addConstraint(Sketcher.Constraint("DistanceY", 16, 3, 4, 3, Q("53 mm")))
sketch7.addConstraint(Sketcher.Constraint("DistanceY", 24, 3, 4, 3, Q("11 mm")))
sketch7.addConstraint(Sketcher.Constraint("DistanceX", 22, 3, 24, 3, Q("11 mm")))
pad2 = body.newObject("PartDesign::Pad", "Pad001")
pad2.Profile = sketch7
pad2.Length = 4
pad2.Reversed = True

sketch8 = body.newObject("Sketcher::SketchObject", "Sketch007")
sketch8.AttachmentSupport = (doc.getObject("XZ_Plane"), [""])
sketch8.MapMode = "FlatFace"
sketch8.AttachmentOffset = App.Placement(V(0, 0, -9), App.Rotation())
sketch8.addGeometry(Part.Circle(V(0, 0, 0), V(0, 0, 1), 15), False)
sketch8.addConstraint(Sketcher.Constraint("Coincident", 0, 3, -1, 1))
sketch8.addConstraint(Sketcher.Constraint("Diameter", 0, Q("30 mm")))
pocket6 = body.newObject("PartDesign::Pocket", "Pocket005")
pocket6.Profile = sketch8
pocket6.Length = 4
pocket6.Reversed = True

sketch9 = body.newObject("Sketcher::SketchObject", "Sketch008")
sketch9.Placement = App.Placement(V(6.806657, 0, -22.349851), App.Rotation(V(-0.956619879, 0, -0.291338991), V(0, 1.000000001, 0), V(0.291338991, 0, -0.956619879), "ZXY"))
sketch9.addGeometry(Part.Circle(V(0, 5.2, 0), V(0, 0, 1), 3), False)
sketch9.addConstraint(Sketcher.Constraint("PointOnObject", 0, 3, -2))
sketch9.addConstraint(Sketcher.Constraint("Diameter", 0, Q("6 mm")))
sketch9.addConstraint(Sketcher.Constraint("DistanceY", -1, 1, 0, 3, Q("5.235319 mm")))
pocket7 = body.newObject("PartDesign::Pocket", "Pocket006")
pocket7.Profile = sketch9
pocket7.Type = "TwoLengths"
pocket7.Length = 10
pocket7.Length2 = 16
pocket7.Reversed = True

doc.recompute()
